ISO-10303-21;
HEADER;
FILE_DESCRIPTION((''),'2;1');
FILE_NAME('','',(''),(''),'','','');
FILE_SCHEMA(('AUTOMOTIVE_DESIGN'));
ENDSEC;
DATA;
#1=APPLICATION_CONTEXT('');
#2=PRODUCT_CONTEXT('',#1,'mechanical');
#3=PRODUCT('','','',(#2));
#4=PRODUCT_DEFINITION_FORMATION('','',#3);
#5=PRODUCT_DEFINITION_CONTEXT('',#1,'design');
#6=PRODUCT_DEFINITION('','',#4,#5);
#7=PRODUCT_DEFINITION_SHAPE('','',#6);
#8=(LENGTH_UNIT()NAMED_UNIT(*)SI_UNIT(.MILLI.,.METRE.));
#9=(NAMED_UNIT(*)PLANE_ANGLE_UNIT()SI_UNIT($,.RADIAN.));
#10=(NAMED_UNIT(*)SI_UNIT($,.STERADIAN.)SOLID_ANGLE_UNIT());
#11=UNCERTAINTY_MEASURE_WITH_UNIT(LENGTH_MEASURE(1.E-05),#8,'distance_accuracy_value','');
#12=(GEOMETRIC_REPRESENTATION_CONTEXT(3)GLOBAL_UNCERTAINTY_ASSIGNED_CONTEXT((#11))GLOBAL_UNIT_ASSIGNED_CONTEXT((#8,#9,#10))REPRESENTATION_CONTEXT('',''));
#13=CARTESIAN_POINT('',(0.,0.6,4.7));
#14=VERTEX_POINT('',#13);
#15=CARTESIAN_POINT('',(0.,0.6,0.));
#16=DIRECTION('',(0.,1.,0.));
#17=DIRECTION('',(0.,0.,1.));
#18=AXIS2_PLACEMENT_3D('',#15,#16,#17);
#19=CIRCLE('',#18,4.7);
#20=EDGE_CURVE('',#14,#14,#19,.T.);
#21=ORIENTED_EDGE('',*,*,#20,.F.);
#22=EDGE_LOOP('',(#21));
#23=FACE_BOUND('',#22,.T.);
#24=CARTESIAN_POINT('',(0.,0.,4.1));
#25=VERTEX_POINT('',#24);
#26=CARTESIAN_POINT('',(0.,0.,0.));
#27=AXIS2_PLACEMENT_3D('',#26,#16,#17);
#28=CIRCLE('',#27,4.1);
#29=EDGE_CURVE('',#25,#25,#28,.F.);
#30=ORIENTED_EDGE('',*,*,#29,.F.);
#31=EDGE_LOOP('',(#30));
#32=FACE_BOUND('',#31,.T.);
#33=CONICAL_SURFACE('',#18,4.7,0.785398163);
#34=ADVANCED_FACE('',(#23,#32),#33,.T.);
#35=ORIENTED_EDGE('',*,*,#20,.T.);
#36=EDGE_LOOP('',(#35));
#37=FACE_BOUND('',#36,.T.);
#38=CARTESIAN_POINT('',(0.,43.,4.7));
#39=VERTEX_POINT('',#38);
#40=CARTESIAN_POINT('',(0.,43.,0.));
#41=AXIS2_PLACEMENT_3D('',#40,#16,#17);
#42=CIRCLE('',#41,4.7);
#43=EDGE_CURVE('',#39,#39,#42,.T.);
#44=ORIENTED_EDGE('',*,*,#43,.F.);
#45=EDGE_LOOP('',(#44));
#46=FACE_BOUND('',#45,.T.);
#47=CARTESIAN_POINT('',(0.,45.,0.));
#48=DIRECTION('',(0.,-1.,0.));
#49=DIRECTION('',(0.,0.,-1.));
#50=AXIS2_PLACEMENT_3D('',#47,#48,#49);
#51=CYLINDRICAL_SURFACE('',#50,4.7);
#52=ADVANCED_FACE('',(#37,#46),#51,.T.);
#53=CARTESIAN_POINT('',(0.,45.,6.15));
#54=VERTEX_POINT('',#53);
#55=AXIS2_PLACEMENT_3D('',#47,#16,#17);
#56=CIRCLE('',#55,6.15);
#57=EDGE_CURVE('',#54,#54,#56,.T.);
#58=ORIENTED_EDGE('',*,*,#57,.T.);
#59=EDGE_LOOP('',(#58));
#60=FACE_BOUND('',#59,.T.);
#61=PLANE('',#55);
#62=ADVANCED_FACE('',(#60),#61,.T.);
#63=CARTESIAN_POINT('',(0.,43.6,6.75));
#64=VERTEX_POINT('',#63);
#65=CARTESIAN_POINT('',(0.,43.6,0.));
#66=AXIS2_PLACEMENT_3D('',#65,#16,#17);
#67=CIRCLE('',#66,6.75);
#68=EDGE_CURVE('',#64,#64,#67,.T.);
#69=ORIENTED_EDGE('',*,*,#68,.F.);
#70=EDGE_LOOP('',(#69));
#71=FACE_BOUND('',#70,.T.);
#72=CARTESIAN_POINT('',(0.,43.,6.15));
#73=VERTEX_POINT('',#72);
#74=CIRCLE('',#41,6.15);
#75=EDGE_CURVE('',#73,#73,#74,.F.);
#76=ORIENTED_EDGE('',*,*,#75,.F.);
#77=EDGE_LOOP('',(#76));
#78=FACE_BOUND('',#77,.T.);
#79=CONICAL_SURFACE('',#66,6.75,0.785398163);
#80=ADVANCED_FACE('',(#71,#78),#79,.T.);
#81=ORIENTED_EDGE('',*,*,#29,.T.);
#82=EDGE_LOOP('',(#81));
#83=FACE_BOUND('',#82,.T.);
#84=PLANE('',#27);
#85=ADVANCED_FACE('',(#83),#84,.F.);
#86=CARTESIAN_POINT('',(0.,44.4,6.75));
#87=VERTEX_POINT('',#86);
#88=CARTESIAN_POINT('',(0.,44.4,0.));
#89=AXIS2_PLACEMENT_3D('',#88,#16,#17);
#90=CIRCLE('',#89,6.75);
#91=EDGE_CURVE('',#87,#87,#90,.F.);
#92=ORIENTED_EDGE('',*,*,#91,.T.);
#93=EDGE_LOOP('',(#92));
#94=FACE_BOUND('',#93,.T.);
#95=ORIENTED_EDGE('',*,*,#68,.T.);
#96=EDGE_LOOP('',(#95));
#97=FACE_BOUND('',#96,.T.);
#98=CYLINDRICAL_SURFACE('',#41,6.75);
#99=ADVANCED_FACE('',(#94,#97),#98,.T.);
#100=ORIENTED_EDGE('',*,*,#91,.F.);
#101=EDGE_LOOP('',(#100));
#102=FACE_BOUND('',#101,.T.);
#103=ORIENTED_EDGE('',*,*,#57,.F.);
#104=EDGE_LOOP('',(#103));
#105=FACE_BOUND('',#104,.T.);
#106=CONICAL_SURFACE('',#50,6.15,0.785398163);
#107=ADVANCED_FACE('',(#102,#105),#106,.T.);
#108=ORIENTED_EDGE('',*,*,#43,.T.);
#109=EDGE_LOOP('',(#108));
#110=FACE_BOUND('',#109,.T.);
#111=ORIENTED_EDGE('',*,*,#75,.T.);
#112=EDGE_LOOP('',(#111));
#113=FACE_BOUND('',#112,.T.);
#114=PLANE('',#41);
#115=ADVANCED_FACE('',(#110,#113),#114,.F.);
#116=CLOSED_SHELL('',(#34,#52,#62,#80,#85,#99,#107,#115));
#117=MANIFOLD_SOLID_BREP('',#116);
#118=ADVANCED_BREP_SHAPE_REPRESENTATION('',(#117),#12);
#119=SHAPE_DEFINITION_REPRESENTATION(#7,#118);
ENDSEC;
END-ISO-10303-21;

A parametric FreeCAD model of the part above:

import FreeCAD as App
import Part
import Sketcher
from FreeCAD import Vector


def edges_at(feature, points):
    """Names of the edges that pass closest to the given points."""
    edges = feature.Shape.Edges
    near = lambda p: min(range(len(edges)), key=lambda i: edges[i].distToShape(Part.Vertex(*p))[0])
    return sorted({f"Edge{near(p) + 1}" for p in points})

doc = App.newDocument("Part")
params = doc.addObject("Spreadsheet::Sheet", "Params")
for row, (alias, value) in enumerate([
    ("sketch1_diameter", "9.4 mm"),
    ("pad1_length", "45 mm"),
    ("sketch2_diameter", "13.5 mm"),
    ("pad2_length", "2 mm"),
    ("chamfer_size", "0.6 mm"),
], start=1):
    params.set(f"A{row}", alias)
    params.set(f"B{row}", "=" + value)
    params.setAlias(f"B{row}", alias)

body = doc.addObject("PartDesign::Body", "Body")

sketch1 = body.newObject("Sketcher::SketchObject", "Sketch")
sketch1.AttachmentSupport = (doc.getObject("XZ_Plane"), [""])
sketch1.MapMode = "FlatFace"
sketch1.addGeometry(Part.Circle(Vector(0, 0, 0), Vector(0, 0, 1), 4.7), False)
sketch1.addConstraint(Sketcher.Constraint("Coincident", 0, 3, -1, 1))
sketch1.addConstraint(Sketcher.Constraint("Diameter", 0, 9.4))
sketch1.setExpression("Constraints[1]", "Params.sketch1_diameter")
pad1 = body.newObject("PartDesign::Pad", "Pad")
pad1.Profile = sketch1
pad1.setExpression("Length", "Params.pad1_length")
pad1.Reversed = True

sketch2 = body.newObject("Sketcher::SketchObject", "Sketch001")
sketch2.AttachmentSupport = (doc.getObject("XZ_Plane"), [""])
sketch2.MapMode = "FlatFace"
sketch2.AttachmentOffset = App.Placement(Vector(0, 0, -45), App.Rotation())
sketch2.addGeometry(Part.Circle(Vector(0, 0, 0), Vector(0, 0, 1), 7), False)
sketch2.addConstraint(Sketcher.Constraint("Coincident", 0, 3, -1, 1))
sketch2.addConstraint(Sketcher.Constraint("Diameter", 0, 13.5))
sketch2.setExpression("Constraints[1]", "Params.sketch2_diameter")
pad2 = body.newObject("PartDesign::Pad", "Pad001")
pad2.Profile = sketch2
pad2.setExpression("Length", "Params.pad2_length")
doc.recompute()

chamfer = body.newObject("PartDesign::Chamfer", "Chamfer")
chamfer.Base = (pad2, edges_at(pad2, [(-4.7, 0, 0), (-6.75, 45, 0), (-6.75, 43, 0)]))
chamfer.setExpression("Size", "Params.chamfer_size")

doc.recompute()
